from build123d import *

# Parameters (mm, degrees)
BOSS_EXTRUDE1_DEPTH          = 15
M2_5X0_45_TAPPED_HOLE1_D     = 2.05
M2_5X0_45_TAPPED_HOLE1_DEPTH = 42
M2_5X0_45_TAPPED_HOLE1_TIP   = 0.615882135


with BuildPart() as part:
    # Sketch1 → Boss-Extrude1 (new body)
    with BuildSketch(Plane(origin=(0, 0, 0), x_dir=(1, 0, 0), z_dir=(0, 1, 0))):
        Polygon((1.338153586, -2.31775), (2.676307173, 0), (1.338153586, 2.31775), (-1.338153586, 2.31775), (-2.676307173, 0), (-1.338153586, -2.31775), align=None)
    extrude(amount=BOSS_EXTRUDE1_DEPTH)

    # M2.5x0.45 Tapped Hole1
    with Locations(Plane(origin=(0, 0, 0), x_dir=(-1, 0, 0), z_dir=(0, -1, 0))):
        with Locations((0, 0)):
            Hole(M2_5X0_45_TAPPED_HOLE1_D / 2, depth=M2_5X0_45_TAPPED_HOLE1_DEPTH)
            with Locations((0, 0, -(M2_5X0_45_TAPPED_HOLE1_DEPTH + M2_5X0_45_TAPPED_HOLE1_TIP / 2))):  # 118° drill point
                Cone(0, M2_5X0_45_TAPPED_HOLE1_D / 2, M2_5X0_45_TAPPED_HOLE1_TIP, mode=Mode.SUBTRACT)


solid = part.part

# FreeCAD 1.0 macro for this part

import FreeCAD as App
import Part
import Sketcher
from FreeCAD import Vector
Q = App.Units.Quantity


def add_polygon(sketch, points):
    """Adds a closed chain of lines whose ends are joined by coincident constraints."""
    first, n = sketch.GeometryCount, len(points)
    for a, b in zip(points, points[1:] + points[:1]):
        sketch.addGeometry(Part.LineSegment(App.Vector(*a, 0), App.Vector(*b, 0)), False)
    for i in range(n):
        sketch.addConstraint(Sketcher.Constraint("Coincident", first + i, 2, first + (i + 1) % n, 1))

doc = App.newDocument("Part")
params = doc.addObject("Spreadsheet::Sheet", "Params")
for row, (alias, value) in enumerate([
    ("pad1_length", "15 mm"),
    ("sketch2_diameter", "2.05 mm"),
    ("hole_diameter", "2.05 mm"),
    ("hole_depth", "42 mm"),
], start=1):
    params.set(f"A{row}", alias)
    params.set(f"B{row}", "=" + value)
    params.setAlias(f"B{row}", alias)

body = doc.addObject("PartDesign::Body", "Body")

# Sketch on XZ plane
sketch1 = body.newObject("Sketcher::SketchObject", "Sketch")
sketch1.AttachmentSupport = (doc.getObject("XZ_Plane"), [""])
sketch1.MapMode = "FlatFace"
add_polygon(sketch1, [(1.3, 2.3), (2.7, 0), (1.3, -2.3), (-1.3, -2.3), (-2.7, 0), (-1.3, 2.3)])  # lines 0-5
sketch1.addConstraint([
    Sketcher.Constraint("Horizontal", 2),
    Sketcher.Constraint("Horizontal", 5),
    Sketcher.Constraint("Symmetric", 0, 2, 3, 2, -1, 1),
    Sketcher.Constraint("Symmetric", 1, 2, 4, 2, -1, 1),
    Sketcher.Constraint("PointOnObject", 0, 2, -1),
    Sketcher.Constraint("Parallel", 0, 3),
    Sketcher.Constraint("Vertical", 2, 2, 4, 2),
    Sketcher.Constraint("Angle", 0, Q("-60 deg")),
    Sketcher.Constraint("DistanceY", 2, 2, 4, 2, Q("4.6355 mm")),
    Sketcher.Constraint("DistanceX", 2, 2, 2, 1, Q("2.676307 mm")),
])
pad1 = body.newObject("PartDesign::Pad", "Pad")
pad1.Profile = sketch1
pad1.setExpression("Length", "Params.pad1_length")
pad1.Reversed = True

# Sketch on XZ plane
sketch2 = body.newObject("Sketcher::SketchObject", "Sketch001")
sketch2.AttachmentSupport = (doc.getObject("XZ_Plane"), [""])
sketch2.MapMode = "FlatFace"
sketch2.addGeometry(Part.Circle(Vector(0, 0, 0), Vector(0, 0, 1), 1), False)
sketch2.addConstraint([
    Sketcher.Constraint("Coincident", 0, 3, -1, 1),
    Sketcher.Constraint("Diameter", 0, Q("2.05 mm")),
])
sketch2.setExpression("Constraints[1]", "Params.sketch2_diameter")
doc.recompute()
hole = body.newObject("PartDesign::Hole", "Hole")
hole.Profile = sketch2
hole.ThreadType = "None"
hole.setExpression("Diameter", "Params.hole_diameter")
hole.DepthType = "Dimension"
hole.setExpression("Depth", "Params.hole_depth")
hole.DrillPoint = "Angled"
hole.DrillPointAngle = 118

doc.recompute()
